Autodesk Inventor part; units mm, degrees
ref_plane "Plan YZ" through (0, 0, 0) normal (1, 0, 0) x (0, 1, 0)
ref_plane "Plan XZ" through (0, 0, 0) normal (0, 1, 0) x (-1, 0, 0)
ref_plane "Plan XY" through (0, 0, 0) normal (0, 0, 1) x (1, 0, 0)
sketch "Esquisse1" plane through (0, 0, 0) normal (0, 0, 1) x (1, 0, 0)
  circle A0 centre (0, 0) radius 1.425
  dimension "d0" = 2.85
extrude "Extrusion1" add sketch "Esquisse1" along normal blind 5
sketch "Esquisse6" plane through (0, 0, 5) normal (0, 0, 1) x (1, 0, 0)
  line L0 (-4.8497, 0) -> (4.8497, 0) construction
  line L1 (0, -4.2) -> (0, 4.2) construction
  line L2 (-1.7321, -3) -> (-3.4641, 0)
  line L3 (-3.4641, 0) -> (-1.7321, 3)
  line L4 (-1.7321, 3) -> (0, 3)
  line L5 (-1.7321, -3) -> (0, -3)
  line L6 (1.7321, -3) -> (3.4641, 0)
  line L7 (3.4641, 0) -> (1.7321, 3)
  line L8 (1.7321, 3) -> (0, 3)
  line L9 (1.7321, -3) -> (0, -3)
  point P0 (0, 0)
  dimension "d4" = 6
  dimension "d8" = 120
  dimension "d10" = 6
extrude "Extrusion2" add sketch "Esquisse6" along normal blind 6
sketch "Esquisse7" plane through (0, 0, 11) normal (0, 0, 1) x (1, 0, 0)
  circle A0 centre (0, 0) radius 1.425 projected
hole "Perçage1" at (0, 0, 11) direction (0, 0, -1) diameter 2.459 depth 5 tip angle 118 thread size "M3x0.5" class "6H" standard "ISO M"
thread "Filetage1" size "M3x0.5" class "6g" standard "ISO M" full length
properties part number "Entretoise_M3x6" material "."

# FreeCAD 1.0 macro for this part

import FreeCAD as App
import Part
import Sketcher
from FreeCAD import Vector
Q = App.Units.Quantity

doc = App.newDocument("Part")
body = doc.addObject("PartDesign::Body", "Body")

# Sketch on XY plane
sketch1 = body.newObject("Sketcher::SketchObject", "Sketch")
sketch1.AttachmentSupport = (doc.getObject("XY_Plane"), [""])
sketch1.MapMode = "FlatFace"
sketch1.addGeometry(Part.Circle(Vector(0, 0, 0), Vector(0, 0, 1), 1.425), False)
sketch1.addConstraint([
    Sketcher.Constraint("Coincident", 0, 3, -1, 1),
    Sketcher.Constraint("Diameter", 0, 2.85),
])
pad1 = body.newObject("PartDesign::Pad", "Pad")
pad1.Profile = sketch1
pad1.Length = 5

# Sketch on XY plane
sketch2 = body.newObject("Sketcher::SketchObject", "Sketch001")
sketch2.AttachmentSupport = (doc.getObject("XY_Plane"), [""])
sketch2.MapMode = "FlatFace"
sketch2.AttachmentOffset = App.Placement(Vector(0, 0, 5), App.Rotation())
sketch2.addGeometry([
    Part.LineSegment(Vector(-3.4641, 0, 0), Vector(-1.7321, -3, 0)),  # 0
    Part.LineSegment(Vector(-1.7321, -3, 0), Vector(1.7321, -3, 0)),  # 1
    Part.LineSegment(Vector(1.7321, -3, 0), Vector(3.4641, 0, 0)),  # 2
    Part.LineSegment(Vector(3.4641, 0, 0), Vector(1.7321, 3, 0)),  # 3
    Part.LineSegment(Vector(1.7321, 3, 0), Vector(-1.7321, 3, 0)),  # 4
    Part.LineSegment(Vector(-1.7321, 3, 0), Vector(-3.4641, 0, 0)),  # 5
], False)
sketch2.addConstraint([
    Sketcher.Constraint("Coincident", 0, 2, 1, 1),
    Sketcher.Constraint("Coincident", 1, 2, 2, 1),
    Sketcher.Constraint("Coincident", 2, 2, 3, 1),
    Sketcher.Constraint("Coincident", 3, 2, 4, 1),
    Sketcher.Constraint("Coincident", 4, 2, 5, 1),
    Sketcher.Constraint("Coincident", 5, 2, 0, 1),
    Sketcher.Constraint("Horizontal", 1),
    Sketcher.Constraint("Horizontal", 4),
    Sketcher.Constraint("Symmetric", 0, 2, 3, 2, -1, 1),
    Sketcher.Constraint("Symmetric", 2, 2, 5, 2, -1, 1),
    Sketcher.Constraint("PointOnObject", 2, 2, -1),
    Sketcher.Constraint("Parallel", 2, 5),
    Sketcher.Constraint("Vertical", 1, 2, 3, 2),
    Sketcher.Constraint("DistanceY", 1, 2, 3, 2, 6.0),
    Sketcher.Constraint("Angle", 0, Q("-60.0007 deg")),
    Sketcher.Constraint("DistanceX", 1, 1, 1, 2, 3.4642),
])
pad2 = body.newObject("PartDesign::Pad", "Pad001")
pad2.Profile = sketch2
pad2.Length = 6

# Sketch on XY plane
sketch3 = body.newObject("Sketcher::SketchObject", "Sketch002")
sketch3.AttachmentSupport = (doc.getObject("XY_Plane"), [""])
sketch3.MapMode = "FlatFace"
sketch3.AttachmentOffset = App.Placement(Vector(0, 0, 11), App.Rotation())
sketch3.addGeometry(Part.Circle(Vector(0, 0, 0), Vector(0, 0, 1), 1.2295), False)
sketch3.addConstraint([
    Sketcher.Constraint("Coincident", 0, 3, -1, 1),
    Sketcher.Constraint("Diameter", 0, 2.459),
])
doc.recompute()
hole = body.newObject("PartDesign::Hole", "Hole")
hole.Profile = sketch3
hole.ThreadType = "None"
hole.Diameter = 2.459
hole.DepthType = "Dimension"
hole.Depth = 5
hole.DrillPoint = "Angled"
hole.DrillPointAngle = 118

doc.recompute()
